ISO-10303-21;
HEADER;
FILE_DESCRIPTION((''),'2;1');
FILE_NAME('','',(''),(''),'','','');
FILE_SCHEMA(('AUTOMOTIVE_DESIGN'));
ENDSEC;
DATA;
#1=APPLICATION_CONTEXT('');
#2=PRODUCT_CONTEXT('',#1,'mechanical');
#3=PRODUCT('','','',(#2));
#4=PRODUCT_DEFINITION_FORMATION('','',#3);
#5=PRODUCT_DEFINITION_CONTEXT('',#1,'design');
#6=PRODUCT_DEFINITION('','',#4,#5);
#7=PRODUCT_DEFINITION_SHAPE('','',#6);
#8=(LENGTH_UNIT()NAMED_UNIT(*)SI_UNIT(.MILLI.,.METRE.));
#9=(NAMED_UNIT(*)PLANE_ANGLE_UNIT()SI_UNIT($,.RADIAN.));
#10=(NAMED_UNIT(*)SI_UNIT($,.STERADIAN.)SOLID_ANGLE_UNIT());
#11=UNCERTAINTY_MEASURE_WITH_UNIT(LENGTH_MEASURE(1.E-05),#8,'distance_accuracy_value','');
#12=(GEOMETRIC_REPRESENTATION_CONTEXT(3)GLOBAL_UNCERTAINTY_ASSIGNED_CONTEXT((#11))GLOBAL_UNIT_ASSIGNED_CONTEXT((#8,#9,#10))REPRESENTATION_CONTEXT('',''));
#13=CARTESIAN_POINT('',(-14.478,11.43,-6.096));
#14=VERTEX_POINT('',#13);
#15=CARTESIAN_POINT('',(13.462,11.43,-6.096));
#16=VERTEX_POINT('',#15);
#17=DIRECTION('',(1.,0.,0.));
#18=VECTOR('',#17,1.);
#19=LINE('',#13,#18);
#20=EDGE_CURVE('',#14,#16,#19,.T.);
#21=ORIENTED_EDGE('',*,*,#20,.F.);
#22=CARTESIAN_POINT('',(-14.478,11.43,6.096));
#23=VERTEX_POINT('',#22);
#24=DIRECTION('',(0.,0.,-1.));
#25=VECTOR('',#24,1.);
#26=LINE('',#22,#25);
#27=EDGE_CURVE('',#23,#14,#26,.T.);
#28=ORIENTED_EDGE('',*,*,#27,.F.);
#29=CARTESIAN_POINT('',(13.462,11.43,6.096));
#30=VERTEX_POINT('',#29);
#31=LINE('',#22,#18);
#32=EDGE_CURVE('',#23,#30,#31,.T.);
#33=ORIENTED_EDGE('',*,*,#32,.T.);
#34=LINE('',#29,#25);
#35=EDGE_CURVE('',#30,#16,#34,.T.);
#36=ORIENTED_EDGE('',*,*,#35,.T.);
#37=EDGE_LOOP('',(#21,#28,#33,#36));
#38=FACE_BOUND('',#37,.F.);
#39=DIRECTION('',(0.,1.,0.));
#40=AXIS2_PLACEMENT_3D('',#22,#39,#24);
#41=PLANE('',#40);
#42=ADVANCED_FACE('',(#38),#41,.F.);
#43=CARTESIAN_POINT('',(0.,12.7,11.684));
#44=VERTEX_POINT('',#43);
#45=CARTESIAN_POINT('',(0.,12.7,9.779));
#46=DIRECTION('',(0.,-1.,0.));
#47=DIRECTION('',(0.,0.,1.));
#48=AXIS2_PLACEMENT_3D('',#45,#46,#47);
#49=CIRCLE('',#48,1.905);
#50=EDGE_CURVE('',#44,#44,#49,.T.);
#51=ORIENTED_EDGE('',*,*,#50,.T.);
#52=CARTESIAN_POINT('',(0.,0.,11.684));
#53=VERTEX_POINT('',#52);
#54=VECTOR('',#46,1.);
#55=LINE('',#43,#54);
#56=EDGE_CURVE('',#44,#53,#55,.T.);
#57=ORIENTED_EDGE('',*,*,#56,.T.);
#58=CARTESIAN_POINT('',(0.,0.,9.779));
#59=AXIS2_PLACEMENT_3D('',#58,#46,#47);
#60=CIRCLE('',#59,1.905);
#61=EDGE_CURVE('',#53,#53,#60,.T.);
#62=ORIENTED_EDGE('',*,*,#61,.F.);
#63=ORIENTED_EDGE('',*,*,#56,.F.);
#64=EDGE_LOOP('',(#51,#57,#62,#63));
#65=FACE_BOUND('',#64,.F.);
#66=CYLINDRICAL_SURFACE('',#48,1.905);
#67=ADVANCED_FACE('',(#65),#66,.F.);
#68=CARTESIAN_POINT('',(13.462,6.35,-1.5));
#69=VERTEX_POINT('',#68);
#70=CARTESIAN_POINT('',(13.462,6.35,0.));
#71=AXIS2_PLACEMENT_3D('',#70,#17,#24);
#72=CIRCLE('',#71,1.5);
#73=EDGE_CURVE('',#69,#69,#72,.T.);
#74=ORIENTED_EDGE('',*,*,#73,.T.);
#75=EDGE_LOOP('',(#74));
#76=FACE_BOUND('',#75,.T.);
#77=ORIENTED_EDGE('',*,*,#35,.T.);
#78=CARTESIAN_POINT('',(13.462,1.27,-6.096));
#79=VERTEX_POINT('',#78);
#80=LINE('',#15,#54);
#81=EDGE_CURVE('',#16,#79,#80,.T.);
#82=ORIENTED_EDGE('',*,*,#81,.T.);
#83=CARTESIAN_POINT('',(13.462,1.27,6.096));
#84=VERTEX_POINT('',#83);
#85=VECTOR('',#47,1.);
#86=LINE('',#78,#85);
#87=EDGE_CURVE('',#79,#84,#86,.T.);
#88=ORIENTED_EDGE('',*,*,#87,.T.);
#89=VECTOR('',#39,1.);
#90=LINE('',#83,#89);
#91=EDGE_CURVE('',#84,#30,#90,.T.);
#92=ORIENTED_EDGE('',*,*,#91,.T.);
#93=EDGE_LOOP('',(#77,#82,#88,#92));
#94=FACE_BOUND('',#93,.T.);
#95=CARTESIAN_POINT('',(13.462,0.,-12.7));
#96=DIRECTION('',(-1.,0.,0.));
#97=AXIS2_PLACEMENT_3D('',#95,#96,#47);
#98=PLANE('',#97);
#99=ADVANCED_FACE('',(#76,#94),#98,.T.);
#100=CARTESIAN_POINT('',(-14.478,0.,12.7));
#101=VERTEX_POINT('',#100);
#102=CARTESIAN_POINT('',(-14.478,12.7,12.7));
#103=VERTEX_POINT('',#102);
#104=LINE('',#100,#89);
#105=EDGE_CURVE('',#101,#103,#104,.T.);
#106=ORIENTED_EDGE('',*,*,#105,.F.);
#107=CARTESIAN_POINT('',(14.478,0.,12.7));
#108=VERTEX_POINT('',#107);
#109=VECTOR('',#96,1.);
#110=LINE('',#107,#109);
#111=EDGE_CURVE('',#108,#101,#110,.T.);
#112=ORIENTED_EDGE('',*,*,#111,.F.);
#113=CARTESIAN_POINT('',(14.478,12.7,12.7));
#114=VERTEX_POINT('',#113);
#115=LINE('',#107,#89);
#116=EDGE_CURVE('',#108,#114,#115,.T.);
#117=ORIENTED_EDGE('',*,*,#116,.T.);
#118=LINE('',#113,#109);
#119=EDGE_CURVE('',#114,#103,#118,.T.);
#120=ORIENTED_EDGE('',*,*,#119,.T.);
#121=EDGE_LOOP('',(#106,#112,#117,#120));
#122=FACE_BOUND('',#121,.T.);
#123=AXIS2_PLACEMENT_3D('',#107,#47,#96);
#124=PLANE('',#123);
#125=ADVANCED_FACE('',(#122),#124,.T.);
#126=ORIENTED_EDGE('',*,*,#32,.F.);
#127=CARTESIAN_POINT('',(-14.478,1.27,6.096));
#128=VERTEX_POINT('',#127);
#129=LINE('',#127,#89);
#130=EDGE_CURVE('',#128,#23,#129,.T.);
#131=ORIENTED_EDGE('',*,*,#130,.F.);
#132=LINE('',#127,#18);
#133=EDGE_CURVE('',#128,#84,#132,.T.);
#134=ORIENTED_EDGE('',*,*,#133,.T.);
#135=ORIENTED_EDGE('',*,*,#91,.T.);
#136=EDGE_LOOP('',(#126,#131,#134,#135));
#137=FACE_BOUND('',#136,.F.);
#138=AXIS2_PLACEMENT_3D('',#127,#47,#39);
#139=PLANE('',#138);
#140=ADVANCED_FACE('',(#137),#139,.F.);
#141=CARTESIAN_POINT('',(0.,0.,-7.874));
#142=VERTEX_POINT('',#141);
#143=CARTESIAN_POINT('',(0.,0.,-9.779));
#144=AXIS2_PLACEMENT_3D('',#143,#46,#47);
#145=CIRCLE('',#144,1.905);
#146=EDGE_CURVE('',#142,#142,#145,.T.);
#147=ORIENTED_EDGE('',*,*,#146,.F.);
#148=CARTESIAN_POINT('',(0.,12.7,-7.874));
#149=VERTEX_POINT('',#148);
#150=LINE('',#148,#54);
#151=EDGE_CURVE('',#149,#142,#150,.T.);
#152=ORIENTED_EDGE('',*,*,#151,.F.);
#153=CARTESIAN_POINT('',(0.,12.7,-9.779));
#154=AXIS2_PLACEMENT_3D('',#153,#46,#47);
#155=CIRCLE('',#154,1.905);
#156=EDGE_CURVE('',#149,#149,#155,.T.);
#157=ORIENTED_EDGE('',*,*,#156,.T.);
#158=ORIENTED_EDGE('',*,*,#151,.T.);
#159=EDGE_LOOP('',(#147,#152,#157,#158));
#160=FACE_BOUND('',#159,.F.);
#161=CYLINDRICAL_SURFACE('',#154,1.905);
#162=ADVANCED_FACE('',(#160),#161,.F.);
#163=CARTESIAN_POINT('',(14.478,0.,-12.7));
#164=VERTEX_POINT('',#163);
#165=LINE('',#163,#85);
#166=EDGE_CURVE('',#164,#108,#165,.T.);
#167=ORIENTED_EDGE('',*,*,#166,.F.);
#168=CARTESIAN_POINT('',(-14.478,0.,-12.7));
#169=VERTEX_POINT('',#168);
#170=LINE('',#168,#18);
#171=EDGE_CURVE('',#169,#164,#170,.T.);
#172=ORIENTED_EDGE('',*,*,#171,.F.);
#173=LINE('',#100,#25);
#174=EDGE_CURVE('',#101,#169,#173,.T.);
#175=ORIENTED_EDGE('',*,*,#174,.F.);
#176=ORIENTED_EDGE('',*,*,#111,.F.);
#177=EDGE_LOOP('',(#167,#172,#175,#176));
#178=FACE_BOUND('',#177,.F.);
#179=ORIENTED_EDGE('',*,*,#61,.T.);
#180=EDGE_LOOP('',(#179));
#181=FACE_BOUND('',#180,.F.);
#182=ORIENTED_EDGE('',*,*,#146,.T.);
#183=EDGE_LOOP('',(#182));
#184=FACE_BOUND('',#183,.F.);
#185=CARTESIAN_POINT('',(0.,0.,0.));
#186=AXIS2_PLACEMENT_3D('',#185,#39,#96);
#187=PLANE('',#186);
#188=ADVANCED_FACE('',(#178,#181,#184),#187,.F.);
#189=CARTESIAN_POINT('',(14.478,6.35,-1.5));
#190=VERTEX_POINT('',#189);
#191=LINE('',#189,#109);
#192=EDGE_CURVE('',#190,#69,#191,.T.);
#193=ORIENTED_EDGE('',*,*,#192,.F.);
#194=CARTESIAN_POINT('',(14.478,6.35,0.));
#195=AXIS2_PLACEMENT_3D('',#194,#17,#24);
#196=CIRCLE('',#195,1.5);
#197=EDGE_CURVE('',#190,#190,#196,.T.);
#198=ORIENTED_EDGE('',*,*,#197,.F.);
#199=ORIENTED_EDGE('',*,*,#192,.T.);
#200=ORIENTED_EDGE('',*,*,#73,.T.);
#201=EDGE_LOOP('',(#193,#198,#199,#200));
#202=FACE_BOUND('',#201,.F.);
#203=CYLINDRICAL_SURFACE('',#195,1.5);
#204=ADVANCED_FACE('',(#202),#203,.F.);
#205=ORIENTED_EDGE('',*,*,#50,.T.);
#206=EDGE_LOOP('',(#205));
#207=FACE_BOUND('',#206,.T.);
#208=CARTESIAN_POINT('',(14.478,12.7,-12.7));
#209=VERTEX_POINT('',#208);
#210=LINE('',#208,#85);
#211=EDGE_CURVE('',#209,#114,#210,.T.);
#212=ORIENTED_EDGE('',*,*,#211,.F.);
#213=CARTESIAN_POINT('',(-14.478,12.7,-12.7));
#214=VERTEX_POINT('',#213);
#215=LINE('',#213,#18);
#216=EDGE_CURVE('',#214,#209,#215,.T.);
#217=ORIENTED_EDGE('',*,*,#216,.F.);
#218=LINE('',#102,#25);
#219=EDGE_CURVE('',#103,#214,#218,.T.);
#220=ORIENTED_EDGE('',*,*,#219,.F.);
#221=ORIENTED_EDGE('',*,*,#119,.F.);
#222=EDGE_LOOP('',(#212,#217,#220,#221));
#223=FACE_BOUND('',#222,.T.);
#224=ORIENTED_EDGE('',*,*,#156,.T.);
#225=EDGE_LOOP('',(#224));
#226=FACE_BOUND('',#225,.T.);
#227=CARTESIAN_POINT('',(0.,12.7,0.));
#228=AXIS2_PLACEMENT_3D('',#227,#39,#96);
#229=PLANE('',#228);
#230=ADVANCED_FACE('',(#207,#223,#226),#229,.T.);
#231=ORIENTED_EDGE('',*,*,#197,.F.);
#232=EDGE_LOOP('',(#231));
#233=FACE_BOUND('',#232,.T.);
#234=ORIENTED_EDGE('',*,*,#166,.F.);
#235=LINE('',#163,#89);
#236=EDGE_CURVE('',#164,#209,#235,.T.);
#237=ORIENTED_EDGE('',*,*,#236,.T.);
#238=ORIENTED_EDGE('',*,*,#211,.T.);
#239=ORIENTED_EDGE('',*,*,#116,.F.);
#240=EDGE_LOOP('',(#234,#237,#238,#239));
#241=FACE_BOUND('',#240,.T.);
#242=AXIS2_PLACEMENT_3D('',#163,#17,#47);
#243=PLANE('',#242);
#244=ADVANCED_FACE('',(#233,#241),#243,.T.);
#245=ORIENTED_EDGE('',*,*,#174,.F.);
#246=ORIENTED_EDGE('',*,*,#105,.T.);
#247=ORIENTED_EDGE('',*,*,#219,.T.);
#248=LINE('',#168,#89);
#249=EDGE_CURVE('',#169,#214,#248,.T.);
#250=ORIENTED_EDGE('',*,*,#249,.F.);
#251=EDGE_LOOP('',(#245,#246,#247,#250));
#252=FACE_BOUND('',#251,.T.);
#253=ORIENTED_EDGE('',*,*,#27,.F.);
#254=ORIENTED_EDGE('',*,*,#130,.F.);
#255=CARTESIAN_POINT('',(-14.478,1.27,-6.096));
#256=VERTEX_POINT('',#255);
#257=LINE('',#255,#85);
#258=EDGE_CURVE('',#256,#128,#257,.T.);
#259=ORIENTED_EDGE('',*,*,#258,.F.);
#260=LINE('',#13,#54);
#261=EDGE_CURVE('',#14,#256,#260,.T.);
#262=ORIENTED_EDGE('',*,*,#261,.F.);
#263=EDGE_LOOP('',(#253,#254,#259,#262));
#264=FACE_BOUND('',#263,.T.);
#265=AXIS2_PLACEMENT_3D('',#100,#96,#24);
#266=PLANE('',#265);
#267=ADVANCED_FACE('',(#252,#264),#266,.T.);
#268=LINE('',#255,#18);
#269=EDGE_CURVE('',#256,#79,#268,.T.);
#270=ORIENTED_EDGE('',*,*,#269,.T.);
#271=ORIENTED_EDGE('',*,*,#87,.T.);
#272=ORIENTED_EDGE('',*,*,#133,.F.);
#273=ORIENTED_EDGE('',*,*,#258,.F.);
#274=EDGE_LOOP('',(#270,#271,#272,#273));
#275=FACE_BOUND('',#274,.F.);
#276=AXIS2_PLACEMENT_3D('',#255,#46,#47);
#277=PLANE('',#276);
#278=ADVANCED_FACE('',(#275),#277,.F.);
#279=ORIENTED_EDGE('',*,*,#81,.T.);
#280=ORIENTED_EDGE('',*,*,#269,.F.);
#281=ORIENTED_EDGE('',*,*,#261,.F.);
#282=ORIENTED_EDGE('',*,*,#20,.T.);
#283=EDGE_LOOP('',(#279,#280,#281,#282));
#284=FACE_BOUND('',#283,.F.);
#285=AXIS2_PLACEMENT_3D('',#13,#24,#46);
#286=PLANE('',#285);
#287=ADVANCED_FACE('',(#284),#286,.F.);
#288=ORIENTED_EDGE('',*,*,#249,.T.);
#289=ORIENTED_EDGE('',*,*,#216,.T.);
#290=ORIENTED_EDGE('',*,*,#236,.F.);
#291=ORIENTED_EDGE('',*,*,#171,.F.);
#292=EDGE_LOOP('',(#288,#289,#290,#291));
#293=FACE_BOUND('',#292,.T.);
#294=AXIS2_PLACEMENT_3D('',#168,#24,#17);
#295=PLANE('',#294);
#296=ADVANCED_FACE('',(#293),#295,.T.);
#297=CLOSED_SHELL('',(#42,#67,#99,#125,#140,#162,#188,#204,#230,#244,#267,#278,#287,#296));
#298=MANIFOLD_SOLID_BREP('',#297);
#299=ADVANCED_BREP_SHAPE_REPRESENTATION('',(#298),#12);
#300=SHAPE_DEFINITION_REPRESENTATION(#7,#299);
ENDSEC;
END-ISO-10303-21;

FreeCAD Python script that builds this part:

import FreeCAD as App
import Part
import Sketcher
Q = App.Units.Quantity


def add_polygon(sketch, points):
    """Adds a closed chain of lines whose ends are joined by coincident constraints."""
    first, n = sketch.GeometryCount, len(points)
    for a, b in zip(points, points[1:] + points[:1]):
        sketch.addGeometry(Part.LineSegment(App.Vector(*a, 0), App.Vector(*b, 0)), False)
    for i in range(n):
        sketch.addConstraint(Sketcher.Constraint("Coincident", first + i, 2, first + (i + 1) % n, 1))

doc = App.newDocument("Part")
body = doc.addObject("PartDesign::Body", "Body")

sketch1 = doc.addObject("Sketcher::SketchObject", "Sketch")
body.addObject(sketch1)
sketch1.AttachmentSupport = (doc.XZ_Plane, [""])
sketch1.MapMode = "FlatFace"
add_polygon(sketch1, [(-14.478, 12.7), (14.478, 12.7), (14.478, -12.7), (-14.478, -12.7)])
sketch1.addConstraint([
    Sketcher.Constraint("Horizontal", 0),
    Sketcher.Constraint("Vertical", 1),
    Sketcher.Constraint("Horizontal", 2),
    Sketcher.Constraint("Vertical", 3),
    Sketcher.Constraint("Symmetric", 0, 2, 2, 2, -1, 1),
    Sketcher.Constraint("DistanceY", 1, 2, 1, 1, Q("1 in")),
    Sketcher.Constraint("DistanceX", 0, 1, 0, 2, Q("1.14 in")),
])
pad1 = doc.addObject("PartDesign::Pad", "Pad")
body.addObject(pad1)
pad1.Profile = sketch1
pad1.Length = Q("0.5 in")
pad1.Reversed = True

sketch2 = doc.addObject("Sketcher::SketchObject", "Sketch001")
body.addObject(sketch2)
sketch2.AttachmentSupport = (doc.XZ_Plane, [""])
sketch2.MapMode = "FlatFace"
sketch2.AttachmentOffset = App.Placement(App.Vector(0, 0, -0.5 * 25.4), App.Rotation())
sketch2.addGeometry([
    Part.Circle(App.Vector(0, 9.779, 0), App.Vector(0, 0, 1), 1.905),
    Part.Circle(App.Vector(0, -9.779, 0), App.Vector(0, 0, 1), 1.905),
], False)
sketch2.addConstraint([
    Sketcher.Constraint("Equal", 0, 1),
    Sketcher.Constraint("Symmetric", 0, 3, 1, 3, -1, 1),
    Sketcher.Constraint("PointOnObject", 0, 3, -2),
    Sketcher.Constraint("Diameter", 0, Q("0.15 in")),
    Sketcher.Constraint("DistanceY", 1, 3, 0, 3, Q("0.77 in")),
])
doc.recompute()
hole = doc.addObject("PartDesign::Hole", "Hole")
body.addObject(hole)
hole.Profile = sketch2
hole.ThreadType = "None"
hole.Diameter = Q("0.15 in")
hole.DepthType = "ThroughAll"
hole.Reversed = True

sketch3 = doc.addObject("Sketcher::SketchObject", "Sketch002")
body.addObject(sketch3)
sketch3.AttachmentSupport = (doc.YZ_Plane, [""])
sketch3.MapMode = "FlatFace"
sketch3.AttachmentOffset = App.Placement(App.Vector(0, 0, 0.57 * 25.4), App.Rotation())
sketch3.addGeometry(Part.Circle(App.Vector(6.35, 0, 0), App.Vector(0, 0, 1), 1.5), False)
sketch3.addConstraint([
    Sketcher.Constraint("PointOnObject", 0, 3, -1),
    Sketcher.Constraint("Diameter", 0, Q("0.1181 in")),
    Sketcher.Constraint("DistanceX", -1, 1, 0, 3, Q("0.25 in")),
])
pocket1 = doc.addObject("PartDesign::Pocket", "Pocket")
body.addObject(pocket1)
pocket1.Profile = sketch3
pocket1.Type = "ThroughAll"

sketch4 = doc.addObject("Sketcher::SketchObject", "Sketch003")
body.addObject(sketch4)
sketch4.AttachmentSupport = (doc.YZ_Plane, [""])
sketch4.MapMode = "FlatFace"
sketch4.AttachmentOffset = App.Placement(App.Vector(0, 0, -0.57 * 25.4), App.Rotation())
add_polygon(sketch4, [(11.43, -6.096), (1.27, -6.096), (1.27, 6.096), (11.43, 6.096)])
sketch4.addConstraint([
    Sketcher.Constraint("Horizontal", 0),
    Sketcher.Constraint("Vertical", 1),
    Sketcher.Constraint("Horizontal", 2),
    Sketcher.Constraint("Vertical", 3),
    Sketcher.Constraint("DistanceX", 0, 2, 0, 1, Q("0.4 in")),
    Sketcher.Constraint("DistanceY", 1, 1, 1, 2, Q("0.48 in")),
    Sketcher.Constraint("DistanceX", -1, 1, 0, 2, Q("0.05 in")),
    Sketcher.Constraint("DistanceY", 0, 2, -1, 1, Q("0.24 in")),
])
pocket2 = doc.addObject("PartDesign::Pocket", "Pocket001")
body.addObject(pocket2)
pocket2.Profile = sketch4
pocket2.Length = Q("1.1 in")
pocket2.Reversed = True

doc.recompute()
